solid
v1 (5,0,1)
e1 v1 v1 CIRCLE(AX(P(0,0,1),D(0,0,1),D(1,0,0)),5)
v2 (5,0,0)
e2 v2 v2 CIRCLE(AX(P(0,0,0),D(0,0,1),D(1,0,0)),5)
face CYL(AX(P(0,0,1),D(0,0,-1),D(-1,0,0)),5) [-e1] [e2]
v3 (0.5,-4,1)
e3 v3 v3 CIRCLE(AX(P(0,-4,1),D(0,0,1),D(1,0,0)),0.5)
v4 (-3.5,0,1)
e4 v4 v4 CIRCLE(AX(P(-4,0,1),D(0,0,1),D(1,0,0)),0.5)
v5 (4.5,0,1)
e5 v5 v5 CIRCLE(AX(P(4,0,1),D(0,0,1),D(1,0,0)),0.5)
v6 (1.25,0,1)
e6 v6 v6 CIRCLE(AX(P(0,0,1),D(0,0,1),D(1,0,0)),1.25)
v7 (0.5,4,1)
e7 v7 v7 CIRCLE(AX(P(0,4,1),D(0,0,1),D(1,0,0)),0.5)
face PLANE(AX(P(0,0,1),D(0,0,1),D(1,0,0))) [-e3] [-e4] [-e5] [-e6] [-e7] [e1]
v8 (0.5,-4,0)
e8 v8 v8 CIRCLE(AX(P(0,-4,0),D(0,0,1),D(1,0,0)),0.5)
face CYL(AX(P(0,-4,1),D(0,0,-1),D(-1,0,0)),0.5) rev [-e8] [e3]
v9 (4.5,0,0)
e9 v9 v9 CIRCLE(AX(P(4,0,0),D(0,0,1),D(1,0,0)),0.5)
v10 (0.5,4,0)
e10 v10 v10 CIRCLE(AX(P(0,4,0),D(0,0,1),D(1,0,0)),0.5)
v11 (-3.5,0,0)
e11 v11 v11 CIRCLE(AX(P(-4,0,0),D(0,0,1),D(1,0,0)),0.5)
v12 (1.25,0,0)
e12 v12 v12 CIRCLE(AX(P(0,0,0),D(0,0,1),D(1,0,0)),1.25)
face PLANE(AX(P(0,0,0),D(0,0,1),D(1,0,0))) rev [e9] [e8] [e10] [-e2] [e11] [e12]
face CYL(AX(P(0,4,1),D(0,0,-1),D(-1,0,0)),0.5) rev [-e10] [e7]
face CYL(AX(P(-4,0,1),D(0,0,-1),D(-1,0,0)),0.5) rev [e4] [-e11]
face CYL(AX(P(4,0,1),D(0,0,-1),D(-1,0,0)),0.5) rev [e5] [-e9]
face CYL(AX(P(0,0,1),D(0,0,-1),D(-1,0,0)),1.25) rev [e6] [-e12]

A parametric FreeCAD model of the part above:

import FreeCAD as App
import Part
import Sketcher
from FreeCAD import Vector

doc = App.newDocument("Part")
params = doc.addObject("Spreadsheet::Sheet", "Params")
for row, (alias, value) in enumerate([
    ("sketch1_diameter", "10 mm"),
    ("sketch1_diameter2", "1 mm"),
    ("sketch1_diameter3", "2.5 mm"),
    ("pad1_length", "1 mm"),
], start=1):
    params.set(f"A{row}", alias)
    params.set(f"B{row}", "=" + value)
    params.setAlias(f"B{row}", alias)

body = doc.addObject("PartDesign::Body", "Body")

sketch1 = body.newObject("Sketcher::SketchObject", "Sketch")
sketch1.AttachmentSupport = (doc.getObject("XY_Plane"), [""])
sketch1.MapMode = "FlatFace"
sketch1.addGeometry(Part.Circle(Vector(0, 0, 0), Vector(0, 0, 1), 5), False)
sketch1.addGeometry(Part.Circle(Vector(0, -4, 0), Vector(0, 0, 1), 0.5), False)
sketch1.addGeometry(Part.Circle(Vector(-4, 0, 0), Vector(0, 0, 1), 0.5), False)
sketch1.addGeometry(Part.Circle(Vector(0, 0, 0), Vector(0, 0, 1), 1.2), False)
sketch1.addGeometry(Part.Circle(Vector(4, 0, 0), Vector(0, 0, 1), 0.5), False)
sketch1.addGeometry(Part.Circle(Vector(0, 4, 0), Vector(0, 0, 1), 0.5), False)
sketch1.addConstraint(Sketcher.Constraint("Coincident", 0, 3, -1, 1))
sketch1.addConstraint(Sketcher.Constraint("Coincident", 3, 3, -1, 1))
sketch1.addConstraint(Sketcher.Constraint("Equal", 1, 2))
sketch1.addConstraint(Sketcher.Constraint("Equal", 2, 4))
sketch1.addConstraint(Sketcher.Constraint("Equal", 4, 5))
sketch1.addConstraint(Sketcher.Constraint("Symmetric", 2, 3, 4, 3, -1, 1))
sketch1.addConstraint(Sketcher.Constraint("Symmetric", 1, 3, 5, 3, -1, 1))
sketch1.addConstraint(Sketcher.Constraint("PointOnObject", 1, 3, -2))
sketch1.addConstraint(Sketcher.Constraint("PointOnObject", 2, 3, -1))
sketch1.addConstraint(Sketcher.Constraint("Diameter", 0, 10.0))
sketch1.addConstraint(Sketcher.Constraint("Diameter", 1, 1.0))
sketch1.addConstraint(Sketcher.Constraint("Diameter", 3, 2.5))
sketch1.addConstraint(Sketcher.Constraint("DistanceY", 1, 3, -1, 1, 4.0))
sketch1.addConstraint(Sketcher.Constraint("DistanceX", 2, 3, -1, 1, 4.0))
sketch1.setExpression("Constraints[9]", "Params.sketch1_diameter")
sketch1.setExpression("Constraints[10]", "Params.sketch1_diameter2")
sketch1.setExpression("Constraints[11]", "Params.sketch1_diameter3")
pad1 = body.newObject("PartDesign::Pad", "Pad")
pad1.Profile = sketch1
pad1.setExpression("Length", "Params.pad1_length")

doc.recompute()
